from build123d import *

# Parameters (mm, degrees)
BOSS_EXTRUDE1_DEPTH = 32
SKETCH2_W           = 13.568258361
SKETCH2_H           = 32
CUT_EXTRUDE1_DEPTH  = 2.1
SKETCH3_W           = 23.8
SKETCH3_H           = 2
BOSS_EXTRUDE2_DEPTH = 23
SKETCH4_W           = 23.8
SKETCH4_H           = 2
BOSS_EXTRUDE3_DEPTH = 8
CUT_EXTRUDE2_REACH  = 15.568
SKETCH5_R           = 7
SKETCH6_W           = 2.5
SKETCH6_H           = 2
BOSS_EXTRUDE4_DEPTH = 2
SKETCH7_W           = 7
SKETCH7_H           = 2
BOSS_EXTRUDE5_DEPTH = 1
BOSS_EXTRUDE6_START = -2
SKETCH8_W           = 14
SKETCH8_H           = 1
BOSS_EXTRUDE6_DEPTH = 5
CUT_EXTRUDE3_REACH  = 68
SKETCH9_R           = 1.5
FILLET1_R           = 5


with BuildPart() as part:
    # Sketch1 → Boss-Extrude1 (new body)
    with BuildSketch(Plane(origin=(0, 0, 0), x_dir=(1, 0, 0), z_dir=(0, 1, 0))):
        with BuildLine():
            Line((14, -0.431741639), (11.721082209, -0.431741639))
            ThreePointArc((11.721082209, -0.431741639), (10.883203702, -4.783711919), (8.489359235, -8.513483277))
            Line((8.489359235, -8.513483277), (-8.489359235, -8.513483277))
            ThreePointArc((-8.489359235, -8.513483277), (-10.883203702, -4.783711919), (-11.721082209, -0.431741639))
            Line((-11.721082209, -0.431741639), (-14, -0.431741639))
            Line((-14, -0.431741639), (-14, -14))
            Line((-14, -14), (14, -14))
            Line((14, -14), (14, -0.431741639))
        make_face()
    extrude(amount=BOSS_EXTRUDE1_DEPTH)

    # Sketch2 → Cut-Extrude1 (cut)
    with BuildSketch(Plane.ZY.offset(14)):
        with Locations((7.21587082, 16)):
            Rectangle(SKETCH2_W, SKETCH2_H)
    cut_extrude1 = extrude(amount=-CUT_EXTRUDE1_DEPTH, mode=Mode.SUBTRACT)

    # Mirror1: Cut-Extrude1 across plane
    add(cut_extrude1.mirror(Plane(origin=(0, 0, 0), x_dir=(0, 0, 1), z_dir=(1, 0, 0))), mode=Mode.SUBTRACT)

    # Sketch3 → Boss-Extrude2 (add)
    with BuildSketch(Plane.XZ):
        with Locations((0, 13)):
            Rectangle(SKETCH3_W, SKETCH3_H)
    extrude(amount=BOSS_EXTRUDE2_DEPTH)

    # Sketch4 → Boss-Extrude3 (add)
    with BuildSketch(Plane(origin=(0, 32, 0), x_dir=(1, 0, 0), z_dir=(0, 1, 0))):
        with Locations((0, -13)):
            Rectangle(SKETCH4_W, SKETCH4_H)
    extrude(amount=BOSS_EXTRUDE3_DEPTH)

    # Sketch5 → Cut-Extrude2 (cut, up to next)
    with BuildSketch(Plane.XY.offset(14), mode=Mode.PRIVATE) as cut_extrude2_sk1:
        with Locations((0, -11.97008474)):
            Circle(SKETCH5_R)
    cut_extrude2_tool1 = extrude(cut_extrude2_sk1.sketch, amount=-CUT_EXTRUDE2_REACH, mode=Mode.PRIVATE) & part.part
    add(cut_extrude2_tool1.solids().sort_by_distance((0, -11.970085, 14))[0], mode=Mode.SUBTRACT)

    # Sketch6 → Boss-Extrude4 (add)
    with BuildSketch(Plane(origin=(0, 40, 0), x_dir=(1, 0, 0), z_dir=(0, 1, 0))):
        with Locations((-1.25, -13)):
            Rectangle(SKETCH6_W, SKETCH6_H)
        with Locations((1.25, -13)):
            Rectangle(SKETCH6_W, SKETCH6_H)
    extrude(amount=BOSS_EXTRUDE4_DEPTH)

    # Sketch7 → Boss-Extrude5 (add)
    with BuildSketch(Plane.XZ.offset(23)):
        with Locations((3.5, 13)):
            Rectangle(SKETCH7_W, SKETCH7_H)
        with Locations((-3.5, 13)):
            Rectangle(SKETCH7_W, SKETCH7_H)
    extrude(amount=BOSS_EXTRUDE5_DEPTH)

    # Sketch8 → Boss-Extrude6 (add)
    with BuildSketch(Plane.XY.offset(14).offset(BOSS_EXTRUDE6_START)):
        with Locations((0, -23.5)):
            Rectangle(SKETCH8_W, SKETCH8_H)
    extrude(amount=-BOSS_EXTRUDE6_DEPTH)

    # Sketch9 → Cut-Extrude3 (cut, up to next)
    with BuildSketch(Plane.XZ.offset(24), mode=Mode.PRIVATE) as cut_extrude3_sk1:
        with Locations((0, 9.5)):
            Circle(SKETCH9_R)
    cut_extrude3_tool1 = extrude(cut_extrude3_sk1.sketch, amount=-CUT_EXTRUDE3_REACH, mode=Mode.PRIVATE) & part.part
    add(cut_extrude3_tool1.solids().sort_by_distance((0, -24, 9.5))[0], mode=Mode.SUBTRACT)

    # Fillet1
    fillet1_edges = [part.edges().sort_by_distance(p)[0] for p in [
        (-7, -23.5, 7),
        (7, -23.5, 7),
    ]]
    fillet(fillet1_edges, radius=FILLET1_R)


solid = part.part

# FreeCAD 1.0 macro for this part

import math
import FreeCAD as App
import Part
import Sketcher
from FreeCAD import Vector
Q = App.Units.Quantity


def edges_at(feature, points):
    """Names of the edges that pass closest to the given points."""
    edges = feature.Shape.Edges
    near = lambda p: min(range(len(edges)), key=lambda i: edges[i].distToShape(Part.Vertex(*p))[0])
    return sorted({f"Edge{near(p) + 1}" for p in points})

doc = App.newDocument("Part")
params = doc.addObject("Spreadsheet::Sheet", "Params")
for row, (alias, value) in enumerate([
    ("sketch1_width", "28 mm"),
    ("pad1_length", "32 mm"),
    ("sketch2_width", "32 mm"),
    ("pocket1_length", "2.1 mm"),
    ("sketch3_height", "2 mm"),
    ("sketch3_width", "23.8 mm"),
    ("pad2_length", "23 mm"),
    ("sketch4_height", "2 mm"),
    ("sketch4_width", "23.8 mm"),
    ("pad3_length", "8 mm"),
    ("sketch5_diameter", "14 mm"),
    ("sketch6_width", "5 mm"),
    ("sketch6_height", "2 mm"),
    ("pad4_length", "2 mm"),
    ("sketch7_width", "14 mm"),
    ("sketch7_height", "2 mm"),
    ("pad5_length", "1 mm"),
    ("sketch8_width", "14 mm"),
    ("sketch8_height", "1 mm"),
    ("pad6_length", "5 mm"),
    ("sketch9_diameter", "3 mm"),
    ("fillet_radius", "5 mm"),
], start=1):
    params.set(f"A{row}", alias)
    params.set(f"B{row}", "=" + value)
    params.setAlias(f"B{row}", alias)

body = doc.addObject("PartDesign::Body", "Body")

sketch1 = body.newObject("Sketcher::SketchObject", "Sketch")
sketch1.AttachmentSupport = (doc.getObject("XZ_Plane"), [""])
sketch1.MapMode = "FlatFace"
sketch1.addGeometry([
    Part.LineSegment(Vector(14, 0.4, 0), Vector(11.7, 0.4, 0)),
    Part.ArcOfCircle(Part.Circle(Vector(0, 0.4, 0), Vector(0, 0, 1), 11.7), math.radians(0), math.radians(44)),
    Part.LineSegment(Vector(8.5, 8.5, 0), Vector(-8.5, 8.5, 0)),
    Part.ArcOfCircle(Part.Circle(Vector(0, 0.4, 0), Vector(0, 0, 1), 11.7), math.radians(136), math.radians(180)),
    Part.LineSegment(Vector(-11.7, 0.4, 0), Vector(-14, 0.4, 0)),
    Part.LineSegment(Vector(-14, 0.4, 0), Vector(-14, 14, 0)),
    Part.LineSegment(Vector(-14, 14, 0), Vector(14, 14, 0)),
    Part.LineSegment(Vector(14, 14, 0), Vector(14, 0.4, 0)),
], False)
sketch1.addConstraint([
    Sketcher.Constraint("Coincident", 0, 2, 1, 1),
    Sketcher.Constraint("Coincident", 1, 2, 2, 1),
    Sketcher.Constraint("Coincident", 2, 2, 3, 1),
    Sketcher.Constraint("Coincident", 3, 2, 4, 1),
    Sketcher.Constraint("Coincident", 4, 2, 5, 1),
    Sketcher.Constraint("Coincident", 5, 2, 6, 1),
    Sketcher.Constraint("Coincident", 6, 2, 7, 1),
    Sketcher.Constraint("Coincident", 7, 2, 0, 1),
    Sketcher.Constraint("Horizontal", 0),
    Sketcher.Constraint("Horizontal", 2),
    Sketcher.Constraint("Horizontal", 4),
    Sketcher.Constraint("Vertical", 5),
    Sketcher.Constraint("Horizontal", 6),
    Sketcher.Constraint("Vertical", 7),
    Sketcher.Constraint("Coincident", 3, 3, 1, 3),
    Sketcher.Constraint("Equal", 1, 3),
    Sketcher.Constraint("Symmetric", 0, 2, 3, 2, -2),
    Sketcher.Constraint("Horizontal", 3, 3, 0, 2),
    Sketcher.Constraint("Equal", 0, 4),
    Sketcher.Constraint("DistanceX", 6, 1, 6, 2, Q("28 mm")),
    Sketcher.Constraint("DistanceY", -1, 1, 5, 2, Q("14 mm")),
    Sketcher.Constraint("Radius", 1, Q("11.721082 mm")),
    Sketcher.Constraint("DistanceX", 2, 2, 2, 1, Q("16.978718 mm")),
    Sketcher.Constraint("DistanceY", 5, 1, 5, 2, Q("13.568258 mm")),
])
sketch1.setExpression("Constraints[19]", "Params.sketch1_width")
pad1 = body.newObject("PartDesign::Pad", "Pad")
pad1.Profile = sketch1
pad1.setExpression("Length", "Params.pad1_length")
pad1.Reversed = True

sketch2 = body.newObject("Sketcher::SketchObject", "Sketch001")
sketch2.AttachmentSupport = (doc.getObject("YZ_Plane"), [""])
sketch2.MapMode = "FlatFace"
sketch2.AttachmentOffset = App.Placement(Vector(0, 0, -14), App.Rotation())
sketch2.addGeometry([
    Part.LineSegment(Vector(32, 0, 0), Vector(0, 0, 0)),
    Part.LineSegment(Vector(0, 0, 0), Vector(0, 14, 0)),
    Part.LineSegment(Vector(0, 14, 0), Vector(32, 14, 0)),
    Part.LineSegment(Vector(32, 14, 0), Vector(32, 0, 0)),
], False)
sketch2.addConstraint([
    Sketcher.Constraint("Coincident", 0, 2, 1, 1),
    Sketcher.Constraint("Coincident", 1, 2, 2, 1),
    Sketcher.Constraint("Coincident", 2, 2, 3, 1),
    Sketcher.Constraint("Coincident", 3, 2, 0, 1),
    Sketcher.Constraint("Horizontal", 0),
    Sketcher.Constraint("Vertical", 1),
    Sketcher.Constraint("Horizontal", 2),
    Sketcher.Constraint("Vertical", 3),
    Sketcher.Constraint("PointOnObject", 0, 2, -2),
    Sketcher.Constraint("DistanceX", 0, 2, 0, 1, Q("32 mm")),
    Sketcher.Constraint("DistanceY", -1, 1, 1, 2, Q("14 mm")),
    Sketcher.Constraint("DistanceY", 1, 1, 1, 2, Q("13.568258 mm")),
])
sketch2.setExpression("Constraints[9]", "Params.sketch2_width")
pocket1 = body.newObject("PartDesign::Pocket", "Pocket")
pocket1.Profile = sketch2
pocket1.setExpression("Length", "Params.pocket1_length")
pocket1.Reversed = True
doc.recompute()

mirrored = body.newObject("PartDesign::Mirrored", "Mirrored")
mirrored.Originals = [pocket1]
mirrored.MirrorPlane = (doc.getObject("YZ_Plane"), [""])
body.Tip = mirrored

sketch3 = body.newObject("Sketcher::SketchObject", "Sketch002")
sketch3.AttachmentSupport = (doc.getObject("XZ_Plane"), [""])
sketch3.MapMode = "FlatFace"
sketch3.addGeometry([
    Part.LineSegment(Vector(-11.9, 14, 0), Vector(-11.9, 12, 0)),
    Part.LineSegment(Vector(-11.9, 12, 0), Vector(11.9, 12, 0)),
    Part.LineSegment(Vector(11.9, 12, 0), Vector(11.9, 14, 0)),
    Part.LineSegment(Vector(11.9, 14, 0), Vector(-11.9, 14, 0)),
], False)
sketch3.addConstraint([
    Sketcher.Constraint("Coincident", 0, 2, 1, 1),
    Sketcher.Constraint("Coincident", 1, 2, 2, 1),
    Sketcher.Constraint("Coincident", 2, 2, 3, 1),
    Sketcher.Constraint("Coincident", 3, 2, 0, 1),
    Sketcher.Constraint("Vertical", 0),
    Sketcher.Constraint("Horizontal", 1),
    Sketcher.Constraint("Vertical", 2),
    Sketcher.Constraint("Horizontal", 3),
    Sketcher.Constraint("DistanceY", 0, 2, 0, 1, Q("2 mm")),
    Sketcher.Constraint("DistanceX", 1, 1, 1, 2, Q("23.8 mm")),
    Sketcher.Constraint("DistanceY", -1, 1, 0, 2, Q("12 mm")),
    Sketcher.Constraint("DistanceX", 0, 2, -1, 1, Q("11.9 mm")),
])
sketch3.setExpression("Constraints[8]", "Params.sketch3_height")
sketch3.setExpression("Constraints[9]", "Params.sketch3_width")
pad2 = body.newObject("PartDesign::Pad", "Pad001")
pad2.Profile = sketch3
pad2.setExpression("Length", "Params.pad2_length")

sketch4 = body.newObject("Sketcher::SketchObject", "Sketch003")
sketch4.AttachmentSupport = (doc.getObject("XZ_Plane"), [""])
sketch4.MapMode = "FlatFace"
sketch4.AttachmentOffset = App.Placement(Vector(0, 0, -32), App.Rotation())
sketch4.addGeometry([
    Part.LineSegment(Vector(-11.9, 12, 0), Vector(-11.9, 14, 0)),
    Part.LineSegment(Vector(-11.9, 14, 0), Vector(11.9, 14, 0)),
    Part.LineSegment(Vector(11.9, 14, 0), Vector(11.9, 12, 0)),
    Part.LineSegment(Vector(11.9, 12, 0), Vector(-11.9, 12, 0)),
], False)
sketch4.addConstraint([
    Sketcher.Constraint("Coincident", 0, 2, 1, 1),
    Sketcher.Constraint("Coincident", 1, 2, 2, 1),
    Sketcher.Constraint("Coincident", 2, 2, 3, 1),
    Sketcher.Constraint("Coincident", 3, 2, 0, 1),
    Sketcher.Constraint("Vertical", 0),
    Sketcher.Constraint("Horizontal", 1),
    Sketcher.Constraint("Vertical", 2),
    Sketcher.Constraint("Horizontal", 3),
    Sketcher.Constraint("DistanceY", 0, 1, 0, 2, Q("2 mm")),
    Sketcher.Constraint("DistanceX", 1, 1, 1, 2, Q("23.8 mm")),
    Sketcher.Constraint("DistanceY", -1, 1, 0, 2, Q("14 mm")),
    Sketcher.Constraint("DistanceX", 0, 2, -1, 1, Q("11.9 mm")),
])
sketch4.setExpression("Constraints[8]", "Params.sketch4_height")
sketch4.setExpression("Constraints[9]", "Params.sketch4_width")
pad3 = body.newObject("PartDesign::Pad", "Pad002")
pad3.Profile = sketch4
pad3.setExpression("Length", "Params.pad3_length")
pad3.Reversed = True

sketch5 = body.newObject("Sketcher::SketchObject", "Sketch004")
sketch5.AttachmentSupport = (doc.getObject("XY_Plane"), [""])
sketch5.MapMode = "FlatFace"
sketch5.AttachmentOffset = App.Placement(Vector(0, 0, 14), App.Rotation())
sketch5.addGeometry(Part.Circle(Vector(0, -12, 0), Vector(0, 0, 1), 7), False)
sketch5.addConstraint([
    Sketcher.Constraint("PointOnObject", 0, 3, -2),
    Sketcher.Constraint("Diameter", 0, Q("14 mm")),
    Sketcher.Constraint("DistanceY", 0, 3, -1, 1, Q("11.970085 mm")),
])
sketch5.setExpression("Constraints[1]", "Params.sketch5_diameter")
pocket2 = body.newObject("PartDesign::Pocket", "Pocket001")
pocket2.Profile = sketch5
pocket2.Type = "UpToFirst"

sketch6 = body.newObject("Sketcher::SketchObject", "Sketch005")
sketch6.AttachmentSupport = (doc.getObject("XZ_Plane"), [""])
sketch6.MapMode = "FlatFace"
sketch6.AttachmentOffset = App.Placement(Vector(0, 0, -40), App.Rotation())
sketch6.addGeometry([
    Part.LineSegment(Vector(-2.5, 12, 0), Vector(-2.5, 14, 0)),
    Part.LineSegment(Vector(-2.5, 14, 0), Vector(2.5, 14, 0)),
    Part.LineSegment(Vector(2.5, 14, 0), Vector(2.5, 12, 0)),
    Part.LineSegment(Vector(2.5, 12, 0), Vector(-2.5, 12, 0)),
], False)
sketch6.addConstraint([
    Sketcher.Constraint("Coincident", 0, 2, 1, 1),
    Sketcher.Constraint("Coincident", 1, 2, 2, 1),
    Sketcher.Constraint("Coincident", 2, 2, 3, 1),
    Sketcher.Constraint("Coincident", 3, 2, 0, 1),
    Sketcher.Constraint("Vertical", 0),
    Sketcher.Constraint("Horizontal", 1),
    Sketcher.Constraint("Vertical", 2),
    Sketcher.Constraint("Horizontal", 3),
    Sketcher.Constraint("DistanceX", 1, 1, 1, 2, Q("5 mm")),
    Sketcher.Constraint("DistanceY", 0, 1, 0, 2, Q("2 mm")),
    Sketcher.Constraint("DistanceY", -1, 1, 0, 2, Q("14 mm")),
    Sketcher.Constraint("DistanceX", 0, 2, -1, 1, Q("2.5 mm")),
])
sketch6.setExpression("Constraints[8]", "Params.sketch6_width")
sketch6.setExpression("Constraints[9]", "Params.sketch6_height")
pad4 = body.newObject("PartDesign::Pad", "Pad003")
pad4.Profile = sketch6
pad4.setExpression("Length", "Params.pad4_length")
pad4.Reversed = True

sketch7 = body.newObject("Sketcher::SketchObject", "Sketch006")
sketch7.AttachmentSupport = (doc.getObject("XZ_Plane"), [""])
sketch7.MapMode = "FlatFace"
sketch7.AttachmentOffset = App.Placement(Vector(0, 0, 23), App.Rotation())
sketch7.addGeometry([
    Part.LineSegment(Vector(7, 12, 0), Vector(7, 14, 0)),
    Part.LineSegment(Vector(7, 14, 0), Vector(-7, 14, 0)),
    Part.LineSegment(Vector(-7, 14, 0), Vector(-7, 12, 0)),
    Part.LineSegment(Vector(-7, 12, 0), Vector(7, 12, 0)),
], False)
sketch7.addConstraint([
    Sketcher.Constraint("Coincident", 0, 2, 1, 1),
    Sketcher.Constraint("Coincident", 1, 2, 2, 1),
    Sketcher.Constraint("Coincident", 2, 2, 3, 1),
    Sketcher.Constraint("Coincident", 3, 2, 0, 1),
    Sketcher.Constraint("Vertical", 0),
    Sketcher.Constraint("Horizontal", 1),
    Sketcher.Constraint("Vertical", 2),
    Sketcher.Constraint("Horizontal", 3),
    Sketcher.Constraint("DistanceX", 1, 2, 1, 1, Q("14 mm")),
    Sketcher.Constraint("DistanceY", 0, 1, 0, 2, Q("2 mm")),
    Sketcher.Constraint("DistanceX", -1, 1, 0, 2, Q("7 mm")),
    Sketcher.Constraint("DistanceY", -1, 1, 0, 2, Q("14 mm")),
])
sketch7.setExpression("Constraints[8]", "Params.sketch7_width")
sketch7.setExpression("Constraints[9]", "Params.sketch7_height")
pad5 = body.newObject("PartDesign::Pad", "Pad004")
pad5.Profile = sketch7
pad5.setExpression("Length", "Params.pad5_length")

sketch8 = body.newObject("Sketcher::SketchObject", "Sketch007")
sketch8.AttachmentSupport = (doc.getObject("XY_Plane"), [""])
sketch8.MapMode = "FlatFace"
sketch8.AttachmentOffset = App.Placement(Vector(0, 0, 12), App.Rotation())
sketch8.addGeometry([
    Part.LineSegment(Vector(-7, -23, 0), Vector(-7, -24, 0)),
    Part.LineSegment(Vector(-7, -24, 0), Vector(7, -24, 0)),
    Part.LineSegment(Vector(7, -24, 0), Vector(7, -23, 0)),
    Part.LineSegment(Vector(7, -23, 0), Vector(-7, -23, 0)),
], False)
sketch8.addConstraint([
    Sketcher.Constraint("Coincident", 0, 2, 1, 1),
    Sketcher.Constraint("Coincident", 1, 2, 2, 1),
    Sketcher.Constraint("Coincident", 2, 2, 3, 1),
    Sketcher.Constraint("Coincident", 3, 2, 0, 1),
    Sketcher.Constraint("Vertical", 0),
    Sketcher.Constraint("Horizontal", 1),
    Sketcher.Constraint("Vertical", 2),
    Sketcher.Constraint("Horizontal", 3),
    Sketcher.Constraint("DistanceX", 1, 1, 1, 2, Q("14 mm")),
    Sketcher.Constraint("DistanceY", 0, 2, 0, 1, Q("1 mm")),
    Sketcher.Constraint("DistanceX", 0, 2, -1, 1, Q("7 mm")),
    Sketcher.Constraint("DistanceY", 0, 2, -1, 1, Q("24 mm")),
])
sketch8.setExpression("Constraints[8]", "Params.sketch8_width")
sketch8.setExpression("Constraints[9]", "Params.sketch8_height")
pad6 = body.newObject("PartDesign::Pad", "Pad005")
pad6.Profile = sketch8
pad6.setExpression("Length", "Params.pad6_length")
pad6.Reversed = True

sketch9 = body.newObject("Sketcher::SketchObject", "Sketch008")
sketch9.AttachmentSupport = (doc.getObject("XZ_Plane"), [""])
sketch9.MapMode = "FlatFace"
sketch9.AttachmentOffset = App.Placement(Vector(0, 0, 24), App.Rotation())
sketch9.addGeometry(Part.Circle(Vector(0, 9.5, 0), Vector(0, 0, 1), 1.5), False)
sketch9.addConstraint([
    Sketcher.Constraint("PointOnObject", 0, 3, -2),
    Sketcher.Constraint("Diameter", 0, Q("3 mm")),
    Sketcher.Constraint("DistanceY", -1, 1, 0, 3, Q("9.5 mm")),
])
sketch9.setExpression("Constraints[1]", "Params.sketch9_diameter")
pocket3 = body.newObject("PartDesign::Pocket", "Pocket002")
pocket3.Profile = sketch9
pocket3.Type = "UpToFirst"
doc.recompute()

fillet = body.newObject("PartDesign::Fillet", "Fillet")
fillet.Base = (pocket3, edges_at(pocket3, [(-7, -23.5, 7), (7, -23.5, 7)]))
fillet.setExpression("Radius", "Params.fillet_radius")

doc.recompute()
